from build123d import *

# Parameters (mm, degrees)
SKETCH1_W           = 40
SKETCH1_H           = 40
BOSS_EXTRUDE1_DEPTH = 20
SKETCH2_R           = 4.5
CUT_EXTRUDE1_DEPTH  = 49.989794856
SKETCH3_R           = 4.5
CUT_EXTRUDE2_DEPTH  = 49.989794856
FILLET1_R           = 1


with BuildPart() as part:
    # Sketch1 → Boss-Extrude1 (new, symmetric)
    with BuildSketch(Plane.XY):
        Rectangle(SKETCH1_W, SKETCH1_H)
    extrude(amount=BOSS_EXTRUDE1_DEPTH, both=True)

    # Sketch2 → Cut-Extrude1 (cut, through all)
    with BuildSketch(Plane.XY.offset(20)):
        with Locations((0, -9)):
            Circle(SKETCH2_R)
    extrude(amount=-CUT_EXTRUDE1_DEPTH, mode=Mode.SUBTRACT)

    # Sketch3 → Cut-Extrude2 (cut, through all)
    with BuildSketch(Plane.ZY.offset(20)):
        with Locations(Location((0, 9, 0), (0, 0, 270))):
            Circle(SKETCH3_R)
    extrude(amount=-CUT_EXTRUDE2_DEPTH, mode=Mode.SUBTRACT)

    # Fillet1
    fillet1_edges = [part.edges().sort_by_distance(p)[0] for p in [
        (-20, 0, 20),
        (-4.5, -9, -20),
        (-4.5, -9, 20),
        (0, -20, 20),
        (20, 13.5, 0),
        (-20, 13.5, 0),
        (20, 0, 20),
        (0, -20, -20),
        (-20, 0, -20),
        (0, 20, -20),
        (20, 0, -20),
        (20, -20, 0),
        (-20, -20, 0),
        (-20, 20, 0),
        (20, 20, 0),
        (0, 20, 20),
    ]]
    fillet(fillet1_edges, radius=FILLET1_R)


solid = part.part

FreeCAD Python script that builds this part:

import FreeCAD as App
import Part
import Sketcher

V = App.Vector
Q = App.Units.Quantity

doc = App.newDocument("Part")
body = doc.addObject("PartDesign::Body", "Body")

sketch1 = body.newObject("Sketcher::SketchObject", "Sketch")
sketch1.AttachmentSupport = (doc.getObject("XY_Plane"), [""])
sketch1.MapMode = "FlatFace"
sketch1.addGeometry([
    Part.LineSegment(V(-20, 20, 0), V(-20, -20, 0)),
    Part.LineSegment(V(-20, -20, 0), V(20, -20, 0)),
    Part.LineSegment(V(20, -20, 0), V(20, 20, 0)),
    Part.LineSegment(V(20, 20, 0), V(-20, 20, 0)),
], False)
sketch1.addConstraint([
    Sketcher.Constraint("Coincident", 0, 2, 1, 1),
    Sketcher.Constraint("Coincident", 1, 2, 2, 1),
    Sketcher.Constraint("Coincident", 2, 2, 3, 1),
    Sketcher.Constraint("Coincident", 3, 2, 0, 1),
    Sketcher.Constraint("Vertical", 0),
    Sketcher.Constraint("Horizontal", 1),
    Sketcher.Constraint("Vertical", 2),
    Sketcher.Constraint("Horizontal", 3),
    Sketcher.Constraint("Symmetric", 0, 2, 2, 2, -1, 1),
    Sketcher.Constraint("Equal", 3, 0),
    Sketcher.Constraint("DistanceX", 1, 1, 1, 2, Q("40 mm")),
])
pad1 = body.newObject("PartDesign::Pad", "Pad")
pad1.Profile = sketch1
pad1.Length = 40
pad1.Midplane = True

sketch2 = body.newObject("Sketcher::SketchObject", "Sketch001")
sketch2.AttachmentSupport = (doc.getObject("XY_Plane"), [""])
sketch2.MapMode = "FlatFace"
sketch2.AttachmentOffset = App.Placement(V(0, 0, 20), App.Rotation())
sketch2.addGeometry(Part.Circle(V(0, -9, 0), V(0, 0, 1), 4.5), False)
sketch2.addConstraint([
    Sketcher.Constraint("PointOnObject", 0, 3, -2),
    Sketcher.Constraint("Diameter", 0, Q("9 mm")),
    Sketcher.Constraint("DistanceY", 0, 3, -1, 1, Q("9 mm")),
])
pocket1 = body.newObject("PartDesign::Pocket", "Pocket")
pocket1.Profile = sketch2
pocket1.Type = "ThroughAll"

sketch3 = body.newObject("Sketcher::SketchObject", "Sketch002")
sketch3.AttachmentSupport = (doc.getObject("YZ_Plane"), [""])
sketch3.MapMode = "FlatFace"
sketch3.AttachmentOffset = App.Placement(V(0, 0, -20), App.Rotation())
sketch3.addGeometry(Part.Circle(V(9, 0, 0), V(0, 0, 1), 4.5), False)
sketch3.addConstraint([
    Sketcher.Constraint("PointOnObject", 0, 3, -1),
    Sketcher.Constraint("Diameter", 0, Q("9 mm")),
    Sketcher.Constraint("DistanceX", -1, 1, 0, 3, Q("9 mm")),
])
pocket2 = body.newObject("PartDesign::Pocket", "Pocket001")
pocket2.Profile = sketch3
pocket2.Type = "ThroughAll"
pocket2.Reversed = True
doc.recompute()

fillet = body.newObject("PartDesign::Fillet", "Fillet")
fillet.Base = (pocket2, ["Edge1"])
fillet.UseAllEdges = True
fillet.Radius = 1

doc.recompute()
